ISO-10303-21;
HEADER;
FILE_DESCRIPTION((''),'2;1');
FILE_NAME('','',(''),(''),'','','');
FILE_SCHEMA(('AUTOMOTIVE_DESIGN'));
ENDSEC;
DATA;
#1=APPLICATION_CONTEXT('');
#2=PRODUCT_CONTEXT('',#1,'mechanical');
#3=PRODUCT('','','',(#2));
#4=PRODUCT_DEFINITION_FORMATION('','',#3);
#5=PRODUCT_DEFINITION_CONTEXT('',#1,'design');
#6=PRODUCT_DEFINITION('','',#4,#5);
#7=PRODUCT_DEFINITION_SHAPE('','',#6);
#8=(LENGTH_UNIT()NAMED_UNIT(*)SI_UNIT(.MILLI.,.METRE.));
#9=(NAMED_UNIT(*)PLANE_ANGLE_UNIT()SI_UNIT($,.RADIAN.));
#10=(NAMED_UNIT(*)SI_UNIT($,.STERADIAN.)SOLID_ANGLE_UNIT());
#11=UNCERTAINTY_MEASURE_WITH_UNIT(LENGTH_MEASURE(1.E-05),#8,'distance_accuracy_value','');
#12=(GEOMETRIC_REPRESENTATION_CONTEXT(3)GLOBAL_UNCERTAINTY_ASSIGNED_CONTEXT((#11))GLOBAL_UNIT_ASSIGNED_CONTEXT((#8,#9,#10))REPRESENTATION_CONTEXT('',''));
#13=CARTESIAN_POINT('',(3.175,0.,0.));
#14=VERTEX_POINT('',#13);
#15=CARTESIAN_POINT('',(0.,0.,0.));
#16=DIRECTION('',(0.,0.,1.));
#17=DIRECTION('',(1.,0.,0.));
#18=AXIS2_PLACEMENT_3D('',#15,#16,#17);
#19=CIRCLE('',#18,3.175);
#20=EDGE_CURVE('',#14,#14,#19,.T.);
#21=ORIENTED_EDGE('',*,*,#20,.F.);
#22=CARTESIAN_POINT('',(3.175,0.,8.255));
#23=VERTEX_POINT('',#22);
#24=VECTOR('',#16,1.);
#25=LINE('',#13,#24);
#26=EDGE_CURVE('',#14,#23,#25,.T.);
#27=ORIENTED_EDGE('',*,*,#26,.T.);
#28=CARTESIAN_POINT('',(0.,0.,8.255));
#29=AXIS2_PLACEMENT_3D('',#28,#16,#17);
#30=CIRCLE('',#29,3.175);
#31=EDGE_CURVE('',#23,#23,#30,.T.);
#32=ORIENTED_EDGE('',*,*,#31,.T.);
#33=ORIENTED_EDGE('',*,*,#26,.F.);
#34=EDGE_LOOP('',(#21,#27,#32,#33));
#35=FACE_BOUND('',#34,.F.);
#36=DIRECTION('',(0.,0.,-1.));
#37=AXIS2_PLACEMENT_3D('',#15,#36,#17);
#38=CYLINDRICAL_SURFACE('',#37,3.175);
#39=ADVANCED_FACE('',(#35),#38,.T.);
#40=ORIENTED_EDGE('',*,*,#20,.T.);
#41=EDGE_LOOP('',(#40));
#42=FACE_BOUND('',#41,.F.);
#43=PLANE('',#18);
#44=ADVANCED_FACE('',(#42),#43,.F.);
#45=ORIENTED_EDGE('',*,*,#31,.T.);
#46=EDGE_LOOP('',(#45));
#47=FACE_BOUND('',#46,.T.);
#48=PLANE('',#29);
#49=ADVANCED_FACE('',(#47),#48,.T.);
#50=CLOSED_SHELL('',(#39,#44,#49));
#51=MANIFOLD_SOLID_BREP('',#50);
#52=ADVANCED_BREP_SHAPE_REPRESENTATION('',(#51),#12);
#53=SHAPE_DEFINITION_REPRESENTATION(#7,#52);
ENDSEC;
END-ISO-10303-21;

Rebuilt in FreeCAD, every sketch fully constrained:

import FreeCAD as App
import Part
import Sketcher
from FreeCAD import Vector
Q = App.Units.Quantity

doc = App.newDocument("Part")
body = doc.addObject("PartDesign::Body", "Body")

# Sketch on XY plane
sketch1 = doc.addObject("Sketcher::SketchObject", "Sketch")
body.addObject(sketch1)
sketch1.AttachmentSupport = (doc.XY_Plane, [""])
sketch1.MapMode = "FlatFace"
sketch1.addGeometry(Part.Circle(Vector(0, 0, 0), Vector(0, 0, 1), 3.2), False)
sketch1.addConstraint(Sketcher.Constraint("Coincident", 0, 3, -1, 1))
sketch1.addConstraint(Sketcher.Constraint("Diameter", 0, Q("0.25 in")))
pad1 = doc.addObject("PartDesign::Pad", "Pad")
body.addObject(pad1)
pad1.Profile = sketch1
pad1.Length = Q("0.325 in")

doc.recompute()
